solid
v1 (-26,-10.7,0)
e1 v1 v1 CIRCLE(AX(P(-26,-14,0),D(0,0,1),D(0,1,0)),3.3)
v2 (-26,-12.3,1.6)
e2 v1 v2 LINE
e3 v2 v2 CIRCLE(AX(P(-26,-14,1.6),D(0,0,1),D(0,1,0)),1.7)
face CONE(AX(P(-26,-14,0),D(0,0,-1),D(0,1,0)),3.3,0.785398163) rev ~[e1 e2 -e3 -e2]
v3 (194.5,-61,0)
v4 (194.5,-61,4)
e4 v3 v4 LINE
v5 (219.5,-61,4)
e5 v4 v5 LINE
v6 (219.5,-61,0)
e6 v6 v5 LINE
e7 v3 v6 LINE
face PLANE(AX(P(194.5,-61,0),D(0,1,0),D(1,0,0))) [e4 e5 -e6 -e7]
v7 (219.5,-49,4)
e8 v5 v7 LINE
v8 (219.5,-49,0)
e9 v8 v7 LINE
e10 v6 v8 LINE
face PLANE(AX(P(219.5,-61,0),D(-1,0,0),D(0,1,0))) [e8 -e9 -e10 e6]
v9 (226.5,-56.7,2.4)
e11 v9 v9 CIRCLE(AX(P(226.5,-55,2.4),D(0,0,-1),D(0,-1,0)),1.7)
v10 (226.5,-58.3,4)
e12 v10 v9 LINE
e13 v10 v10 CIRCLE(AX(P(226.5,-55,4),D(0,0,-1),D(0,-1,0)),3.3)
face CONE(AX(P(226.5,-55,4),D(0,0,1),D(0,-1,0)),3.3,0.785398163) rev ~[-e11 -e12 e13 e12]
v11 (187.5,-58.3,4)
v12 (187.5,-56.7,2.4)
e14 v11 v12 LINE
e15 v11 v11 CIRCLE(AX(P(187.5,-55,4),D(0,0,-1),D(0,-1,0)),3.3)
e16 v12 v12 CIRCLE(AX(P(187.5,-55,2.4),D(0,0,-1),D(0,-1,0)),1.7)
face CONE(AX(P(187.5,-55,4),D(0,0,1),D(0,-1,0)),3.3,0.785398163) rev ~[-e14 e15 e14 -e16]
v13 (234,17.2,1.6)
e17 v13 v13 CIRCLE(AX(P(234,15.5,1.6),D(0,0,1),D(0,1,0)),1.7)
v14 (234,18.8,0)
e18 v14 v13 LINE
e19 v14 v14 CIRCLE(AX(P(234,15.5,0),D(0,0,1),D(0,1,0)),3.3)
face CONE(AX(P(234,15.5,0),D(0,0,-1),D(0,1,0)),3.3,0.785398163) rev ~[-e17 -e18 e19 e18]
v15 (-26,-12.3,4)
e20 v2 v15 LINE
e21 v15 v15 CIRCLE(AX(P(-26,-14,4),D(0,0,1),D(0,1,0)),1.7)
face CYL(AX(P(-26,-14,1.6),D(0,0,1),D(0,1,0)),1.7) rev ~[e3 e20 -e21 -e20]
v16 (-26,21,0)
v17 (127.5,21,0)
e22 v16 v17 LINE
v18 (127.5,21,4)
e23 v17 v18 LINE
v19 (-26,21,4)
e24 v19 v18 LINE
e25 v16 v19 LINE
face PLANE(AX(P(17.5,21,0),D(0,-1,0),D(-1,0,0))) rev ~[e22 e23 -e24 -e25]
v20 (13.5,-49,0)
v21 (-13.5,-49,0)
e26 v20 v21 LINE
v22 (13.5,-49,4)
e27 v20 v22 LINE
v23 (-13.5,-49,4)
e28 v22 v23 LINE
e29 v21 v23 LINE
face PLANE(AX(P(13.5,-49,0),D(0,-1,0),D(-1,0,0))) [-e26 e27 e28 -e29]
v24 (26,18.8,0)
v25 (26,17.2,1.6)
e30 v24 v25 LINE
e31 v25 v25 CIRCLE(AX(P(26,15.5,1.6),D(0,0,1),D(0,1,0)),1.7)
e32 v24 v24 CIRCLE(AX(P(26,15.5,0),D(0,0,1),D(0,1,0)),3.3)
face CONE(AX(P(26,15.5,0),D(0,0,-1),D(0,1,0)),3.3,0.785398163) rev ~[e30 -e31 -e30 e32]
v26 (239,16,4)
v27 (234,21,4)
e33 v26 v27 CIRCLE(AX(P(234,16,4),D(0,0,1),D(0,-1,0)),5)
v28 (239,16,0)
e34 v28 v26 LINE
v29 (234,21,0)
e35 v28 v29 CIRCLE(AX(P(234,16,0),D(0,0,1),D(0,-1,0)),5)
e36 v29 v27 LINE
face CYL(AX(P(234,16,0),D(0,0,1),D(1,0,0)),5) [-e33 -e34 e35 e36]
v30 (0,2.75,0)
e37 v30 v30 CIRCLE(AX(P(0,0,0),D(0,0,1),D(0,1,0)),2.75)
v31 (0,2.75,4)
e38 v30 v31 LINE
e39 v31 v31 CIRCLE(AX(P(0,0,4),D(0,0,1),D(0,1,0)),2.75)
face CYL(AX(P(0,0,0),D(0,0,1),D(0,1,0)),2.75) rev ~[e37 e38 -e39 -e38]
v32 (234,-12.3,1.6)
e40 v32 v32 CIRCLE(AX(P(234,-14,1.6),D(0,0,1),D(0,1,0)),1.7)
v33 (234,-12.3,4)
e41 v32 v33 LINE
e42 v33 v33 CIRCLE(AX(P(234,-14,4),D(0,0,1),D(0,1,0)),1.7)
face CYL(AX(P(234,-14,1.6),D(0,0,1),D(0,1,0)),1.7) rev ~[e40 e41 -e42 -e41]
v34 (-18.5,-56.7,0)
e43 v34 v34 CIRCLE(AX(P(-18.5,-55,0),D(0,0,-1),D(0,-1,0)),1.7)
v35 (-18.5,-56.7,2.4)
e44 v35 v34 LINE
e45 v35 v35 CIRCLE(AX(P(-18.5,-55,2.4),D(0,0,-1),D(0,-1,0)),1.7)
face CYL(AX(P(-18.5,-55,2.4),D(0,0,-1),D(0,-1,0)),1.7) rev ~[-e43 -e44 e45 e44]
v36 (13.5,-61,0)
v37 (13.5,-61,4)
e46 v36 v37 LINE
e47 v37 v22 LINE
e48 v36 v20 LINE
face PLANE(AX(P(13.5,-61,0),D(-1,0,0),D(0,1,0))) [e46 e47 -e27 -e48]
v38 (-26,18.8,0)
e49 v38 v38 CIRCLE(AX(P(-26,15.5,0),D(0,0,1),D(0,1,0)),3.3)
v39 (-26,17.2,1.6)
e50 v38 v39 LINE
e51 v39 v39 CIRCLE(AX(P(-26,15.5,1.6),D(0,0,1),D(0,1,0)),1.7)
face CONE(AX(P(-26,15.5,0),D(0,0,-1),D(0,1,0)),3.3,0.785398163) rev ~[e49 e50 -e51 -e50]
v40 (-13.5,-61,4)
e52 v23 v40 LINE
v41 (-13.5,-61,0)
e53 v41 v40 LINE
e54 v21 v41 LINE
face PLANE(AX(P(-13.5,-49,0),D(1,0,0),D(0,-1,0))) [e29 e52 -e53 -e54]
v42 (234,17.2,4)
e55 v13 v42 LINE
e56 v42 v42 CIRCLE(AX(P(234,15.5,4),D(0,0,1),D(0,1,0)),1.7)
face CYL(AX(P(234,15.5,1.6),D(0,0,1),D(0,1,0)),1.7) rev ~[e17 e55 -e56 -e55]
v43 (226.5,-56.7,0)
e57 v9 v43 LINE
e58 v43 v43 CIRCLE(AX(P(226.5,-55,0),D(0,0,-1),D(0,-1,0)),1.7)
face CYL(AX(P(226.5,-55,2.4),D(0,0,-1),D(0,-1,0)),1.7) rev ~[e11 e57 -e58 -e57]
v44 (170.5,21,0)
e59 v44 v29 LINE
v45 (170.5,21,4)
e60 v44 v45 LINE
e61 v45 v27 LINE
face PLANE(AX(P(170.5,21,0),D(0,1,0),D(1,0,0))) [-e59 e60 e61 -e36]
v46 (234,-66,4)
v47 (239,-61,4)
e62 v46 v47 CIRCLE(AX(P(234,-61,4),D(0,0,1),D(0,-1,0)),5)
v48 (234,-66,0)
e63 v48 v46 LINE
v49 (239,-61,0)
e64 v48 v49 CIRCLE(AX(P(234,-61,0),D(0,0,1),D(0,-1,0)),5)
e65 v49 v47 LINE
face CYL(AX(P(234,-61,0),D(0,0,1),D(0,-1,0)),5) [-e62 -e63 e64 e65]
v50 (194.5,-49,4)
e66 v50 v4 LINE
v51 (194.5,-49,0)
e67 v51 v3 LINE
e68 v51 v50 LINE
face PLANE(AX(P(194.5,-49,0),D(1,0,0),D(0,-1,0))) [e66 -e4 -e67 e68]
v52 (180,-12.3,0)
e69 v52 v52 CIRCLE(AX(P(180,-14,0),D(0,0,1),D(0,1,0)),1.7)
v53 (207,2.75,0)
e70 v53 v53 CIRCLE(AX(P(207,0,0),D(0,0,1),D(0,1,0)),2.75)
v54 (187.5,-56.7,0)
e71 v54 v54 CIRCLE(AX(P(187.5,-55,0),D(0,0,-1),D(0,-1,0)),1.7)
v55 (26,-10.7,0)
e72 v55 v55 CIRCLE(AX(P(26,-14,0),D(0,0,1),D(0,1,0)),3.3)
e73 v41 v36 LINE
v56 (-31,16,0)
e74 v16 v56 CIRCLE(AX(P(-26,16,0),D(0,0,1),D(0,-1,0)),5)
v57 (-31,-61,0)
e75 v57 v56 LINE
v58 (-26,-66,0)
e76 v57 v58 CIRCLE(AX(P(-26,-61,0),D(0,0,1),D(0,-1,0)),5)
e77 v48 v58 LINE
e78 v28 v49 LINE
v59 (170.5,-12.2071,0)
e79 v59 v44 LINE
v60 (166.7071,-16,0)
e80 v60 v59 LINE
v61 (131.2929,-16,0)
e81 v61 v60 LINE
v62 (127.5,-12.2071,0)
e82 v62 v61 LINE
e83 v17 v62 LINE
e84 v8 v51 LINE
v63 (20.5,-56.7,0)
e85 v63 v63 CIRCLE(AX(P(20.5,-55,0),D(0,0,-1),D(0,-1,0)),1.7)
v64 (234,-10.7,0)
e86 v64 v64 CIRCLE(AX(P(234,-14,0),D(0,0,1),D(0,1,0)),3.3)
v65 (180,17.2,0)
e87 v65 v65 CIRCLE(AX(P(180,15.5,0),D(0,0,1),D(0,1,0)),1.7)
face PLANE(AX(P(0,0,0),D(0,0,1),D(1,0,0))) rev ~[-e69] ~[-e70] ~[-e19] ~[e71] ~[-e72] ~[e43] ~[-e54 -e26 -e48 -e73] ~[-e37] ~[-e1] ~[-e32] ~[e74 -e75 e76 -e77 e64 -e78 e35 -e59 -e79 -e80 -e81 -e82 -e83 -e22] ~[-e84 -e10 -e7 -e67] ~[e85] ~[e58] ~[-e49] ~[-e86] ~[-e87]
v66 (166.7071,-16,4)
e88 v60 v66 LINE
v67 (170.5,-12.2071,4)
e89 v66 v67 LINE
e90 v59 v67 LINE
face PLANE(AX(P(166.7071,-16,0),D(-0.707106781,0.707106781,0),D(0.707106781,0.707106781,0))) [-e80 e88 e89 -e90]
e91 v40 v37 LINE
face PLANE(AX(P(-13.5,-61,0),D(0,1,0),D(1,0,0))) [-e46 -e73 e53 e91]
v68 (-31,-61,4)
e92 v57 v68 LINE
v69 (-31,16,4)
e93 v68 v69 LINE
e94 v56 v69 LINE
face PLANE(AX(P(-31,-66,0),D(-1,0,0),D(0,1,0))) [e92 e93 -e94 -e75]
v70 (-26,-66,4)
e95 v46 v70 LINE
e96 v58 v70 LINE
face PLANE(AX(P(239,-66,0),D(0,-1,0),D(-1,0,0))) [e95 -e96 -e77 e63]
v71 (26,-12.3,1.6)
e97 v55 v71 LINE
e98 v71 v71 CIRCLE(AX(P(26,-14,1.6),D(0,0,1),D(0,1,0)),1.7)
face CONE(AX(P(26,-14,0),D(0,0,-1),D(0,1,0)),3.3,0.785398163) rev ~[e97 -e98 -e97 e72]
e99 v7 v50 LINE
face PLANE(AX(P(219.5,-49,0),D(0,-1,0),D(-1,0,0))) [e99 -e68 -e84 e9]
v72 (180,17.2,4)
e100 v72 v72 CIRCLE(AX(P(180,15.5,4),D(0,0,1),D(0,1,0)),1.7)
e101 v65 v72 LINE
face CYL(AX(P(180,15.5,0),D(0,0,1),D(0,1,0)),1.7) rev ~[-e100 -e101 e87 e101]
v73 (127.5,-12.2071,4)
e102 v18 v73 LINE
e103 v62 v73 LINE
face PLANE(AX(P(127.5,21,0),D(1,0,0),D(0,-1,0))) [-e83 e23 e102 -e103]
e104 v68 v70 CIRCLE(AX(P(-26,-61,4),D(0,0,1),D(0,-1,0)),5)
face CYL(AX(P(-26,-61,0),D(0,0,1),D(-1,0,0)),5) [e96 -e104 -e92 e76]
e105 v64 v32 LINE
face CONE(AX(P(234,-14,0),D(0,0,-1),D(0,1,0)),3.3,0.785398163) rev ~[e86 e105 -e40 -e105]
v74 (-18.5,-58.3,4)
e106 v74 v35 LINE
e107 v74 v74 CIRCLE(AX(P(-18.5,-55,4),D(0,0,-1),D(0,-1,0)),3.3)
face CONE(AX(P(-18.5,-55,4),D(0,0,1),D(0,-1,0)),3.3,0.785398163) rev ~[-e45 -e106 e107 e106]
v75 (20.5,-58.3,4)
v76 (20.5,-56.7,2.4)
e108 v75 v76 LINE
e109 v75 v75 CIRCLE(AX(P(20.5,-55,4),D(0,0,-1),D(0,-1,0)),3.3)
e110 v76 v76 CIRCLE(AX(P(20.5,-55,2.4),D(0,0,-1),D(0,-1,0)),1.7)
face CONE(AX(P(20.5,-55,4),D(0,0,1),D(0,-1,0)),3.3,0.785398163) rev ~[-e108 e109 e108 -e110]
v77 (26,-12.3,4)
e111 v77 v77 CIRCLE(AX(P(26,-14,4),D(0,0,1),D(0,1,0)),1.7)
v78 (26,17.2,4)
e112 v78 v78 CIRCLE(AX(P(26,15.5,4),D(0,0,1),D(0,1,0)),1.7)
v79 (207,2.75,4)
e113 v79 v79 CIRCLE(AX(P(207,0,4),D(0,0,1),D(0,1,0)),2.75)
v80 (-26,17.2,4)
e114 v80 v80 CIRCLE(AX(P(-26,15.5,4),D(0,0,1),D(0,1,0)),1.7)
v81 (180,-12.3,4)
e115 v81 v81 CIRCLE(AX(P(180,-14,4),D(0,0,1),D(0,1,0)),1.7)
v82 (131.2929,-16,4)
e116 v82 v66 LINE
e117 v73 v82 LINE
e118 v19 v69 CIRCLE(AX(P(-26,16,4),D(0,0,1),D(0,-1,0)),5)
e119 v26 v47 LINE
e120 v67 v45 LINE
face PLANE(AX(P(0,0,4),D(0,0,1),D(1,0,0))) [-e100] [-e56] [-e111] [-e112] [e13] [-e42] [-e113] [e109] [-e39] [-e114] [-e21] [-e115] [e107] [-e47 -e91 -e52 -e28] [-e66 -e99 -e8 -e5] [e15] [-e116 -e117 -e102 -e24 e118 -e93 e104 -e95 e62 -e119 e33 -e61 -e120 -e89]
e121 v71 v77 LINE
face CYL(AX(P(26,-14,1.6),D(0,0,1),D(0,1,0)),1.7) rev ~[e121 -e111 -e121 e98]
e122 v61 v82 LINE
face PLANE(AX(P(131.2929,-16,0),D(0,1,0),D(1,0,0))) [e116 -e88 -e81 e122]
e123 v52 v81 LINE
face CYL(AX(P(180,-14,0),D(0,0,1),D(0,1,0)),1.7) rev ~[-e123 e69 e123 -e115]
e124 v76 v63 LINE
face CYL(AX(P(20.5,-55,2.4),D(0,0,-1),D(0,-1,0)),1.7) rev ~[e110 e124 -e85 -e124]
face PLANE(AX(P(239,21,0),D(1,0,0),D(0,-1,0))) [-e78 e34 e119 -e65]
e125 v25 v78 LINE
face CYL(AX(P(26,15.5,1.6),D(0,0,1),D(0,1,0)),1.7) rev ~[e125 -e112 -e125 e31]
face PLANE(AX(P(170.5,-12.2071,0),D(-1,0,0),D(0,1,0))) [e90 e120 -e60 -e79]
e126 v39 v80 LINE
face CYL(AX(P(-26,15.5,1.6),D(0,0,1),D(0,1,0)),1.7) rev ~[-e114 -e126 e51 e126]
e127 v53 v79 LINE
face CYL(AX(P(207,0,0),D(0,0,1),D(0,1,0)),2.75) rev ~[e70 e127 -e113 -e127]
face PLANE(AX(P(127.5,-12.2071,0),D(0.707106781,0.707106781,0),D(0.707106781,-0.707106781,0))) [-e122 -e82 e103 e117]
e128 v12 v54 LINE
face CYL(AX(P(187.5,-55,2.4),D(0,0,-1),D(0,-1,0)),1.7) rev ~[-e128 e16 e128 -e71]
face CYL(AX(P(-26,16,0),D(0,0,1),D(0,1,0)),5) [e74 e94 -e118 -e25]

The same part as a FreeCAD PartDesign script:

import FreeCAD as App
import Part
import Sketcher
Q = App.Units.Quantity


def edges_at(feature, points):
    """Names of the edges that pass closest to the given points."""
    edges = feature.Shape.Edges
    near = lambda p: min(range(len(edges)), key=lambda i: edges[i].distToShape(Part.Vertex(*p))[0])
    return sorted({f"Edge{near(p) + 1}" for p in points})

doc = App.newDocument("Part")
body = doc.addObject("PartDesign::Body", "Body")

# Sketch on XY plane
sketch1 = body.newObject("Sketcher::SketchObject", "Sketch")
sketch1.AttachmentSupport = (doc.getObject("XY_Plane"), [""])
sketch1.MapMode = "FlatFace"
sketch1.addGeometry(Part.LineSegment(App.Vector(-31, 21, 0), App.Vector(-31, -66, 0)), False)
sketch1.addGeometry(Part.LineSegment(App.Vector(-31, -66, 0), App.Vector(239, -66, 0)), False)
sketch1.addGeometry(Part.LineSegment(App.Vector(239, -66, 0), App.Vector(239, 21, 0)), False)
sketch1.addGeometry(Part.LineSegment(App.Vector(239, 21, 0), App.Vector(170, 21, 0)), False)
sketch1.addGeometry(Part.LineSegment(App.Vector(170, 21, 0), App.Vector(170, -12, 0)), False)
sketch1.addGeometry(Part.LineSegment(App.Vector(170, -12, 0), App.Vector(167, -16, 0)), False)
sketch1.addGeometry(Part.LineSegment(App.Vector(167, -16, 0), App.Vector(131, -16, 0)), False)
sketch1.addGeometry(Part.LineSegment(App.Vector(131, -16, 0), App.Vector(128, -12, 0)), False)
sketch1.addGeometry(Part.LineSegment(App.Vector(128, -12, 0), App.Vector(128, 21, 0)), False)
sketch1.addGeometry(Part.LineSegment(App.Vector(128, 21, 0), App.Vector(-31, 21, 0)), False)
sketch1.addGeometry(Part.LineSegment(App.Vector(14, -49, 0), App.Vector(14, -61, 0)), False)
sketch1.addGeometry(Part.LineSegment(App.Vector(14, -61, 0), App.Vector(-14, -61, 0)), False)
sketch1.addGeometry(Part.LineSegment(App.Vector(-14, -61, 0), App.Vector(-14, -49, 0)), False)
sketch1.addGeometry(Part.LineSegment(App.Vector(-14, -49, 0), App.Vector(14, -49, 0)), False)
sketch1.addGeometry(Part.LineSegment(App.Vector(194, -49, 0), App.Vector(220, -49, 0)), False)
sketch1.addGeometry(Part.LineSegment(App.Vector(220, -49, 0), App.Vector(220, -61, 0)), False)
sketch1.addGeometry(Part.LineSegment(App.Vector(220, -61, 0), App.Vector(194, -61, 0)), False)
sketch1.addGeometry(Part.LineSegment(App.Vector(194, -61, 0), App.Vector(194, -49, 0)), False)
sketch1.addConstraint(Sketcher.Constraint("Coincident", 0, 2, 1, 1))
sketch1.addConstraint(Sketcher.Constraint("Coincident", 1, 2, 2, 1))
sketch1.addConstraint(Sketcher.Constraint("Coincident", 2, 2, 3, 1))
sketch1.addConstraint(Sketcher.Constraint("Coincident", 3, 2, 4, 1))
sketch1.addConstraint(Sketcher.Constraint("Coincident", 4, 2, 5, 1))
sketch1.addConstraint(Sketcher.Constraint("Coincident", 5, 2, 6, 1))
sketch1.addConstraint(Sketcher.Constraint("Coincident", 6, 2, 7, 1))
sketch1.addConstraint(Sketcher.Constraint("Coincident", 7, 2, 8, 1))
sketch1.addConstraint(Sketcher.Constraint("Coincident", 8, 2, 9, 1))
sketch1.addConstraint(Sketcher.Constraint("Coincident", 9, 2, 0, 1))
sketch1.addConstraint(Sketcher.Constraint("Coincident", 10, 2, 11, 1))
sketch1.addConstraint(Sketcher.Constraint("Coincident", 11, 2, 12, 1))
sketch1.addConstraint(Sketcher.Constraint("Coincident", 12, 2, 13, 1))
sketch1.addConstraint(Sketcher.Constraint("Coincident", 13, 2, 10, 1))
sketch1.addConstraint(Sketcher.Constraint("Coincident", 14, 2, 15, 1))
sketch1.addConstraint(Sketcher.Constraint("Coincident", 15, 2, 16, 1))
sketch1.addConstraint(Sketcher.Constraint("Coincident", 16, 2, 17, 1))
sketch1.addConstraint(Sketcher.Constraint("Coincident", 17, 2, 14, 1))
sketch1.addConstraint(Sketcher.Constraint("Vertical", 0))
sketch1.addConstraint(Sketcher.Constraint("Horizontal", 1))
sketch1.addConstraint(Sketcher.Constraint("Vertical", 2))
sketch1.addConstraint(Sketcher.Constraint("Horizontal", 3))
sketch1.addConstraint(Sketcher.Constraint("Vertical", 4))
sketch1.addConstraint(Sketcher.Constraint("Horizontal", 6))
sketch1.addConstraint(Sketcher.Constraint("Vertical", 8))
sketch1.addConstraint(Sketcher.Constraint("Horizontal", 9))
sketch1.addConstraint(Sketcher.Constraint("Vertical", 10))
sketch1.addConstraint(Sketcher.Constraint("Horizontal", 11))
sketch1.addConstraint(Sketcher.Constraint("Vertical", 12))
sketch1.addConstraint(Sketcher.Constraint("Horizontal", 13))
sketch1.addConstraint(Sketcher.Constraint("Horizontal", 14))
sketch1.addConstraint(Sketcher.Constraint("Vertical", 15))
sketch1.addConstraint(Sketcher.Constraint("Horizontal", 16))
sketch1.addConstraint(Sketcher.Constraint("Vertical", 17))
sketch1.addConstraint(Sketcher.Constraint("Perpendicular", 5, 7))
sketch1.addConstraint(Sketcher.Constraint("Horizontal", 4, 2, 7, 2))
sketch1.addConstraint(Sketcher.Constraint("Horizontal", 3, 2, 8, 2))
sketch1.addConstraint(Sketcher.Constraint("Horizontal", 13, 2, 14, 2))
sketch1.addConstraint(Sketcher.Constraint("Horizontal", 11, 2, 15, 2))
sketch1.addConstraint(Sketcher.Constraint("Equal", 5, 7))
sketch1.addConstraint(Sketcher.Constraint("DistanceX", 1, 1, 1, 2, Q("270 mm")))
sketch1.addConstraint(Sketcher.Constraint("DistanceX", 14, 1, 14, 2, Q("25 mm")))
sketch1.addConstraint(Sketcher.Constraint("DistanceY", 10, 2, 10, 1, Q("12 mm")))
sketch1.addConstraint(Sketcher.Constraint("DistanceY", 0, 2, 10, 2, Q("5 mm")))
sketch1.addConstraint(Sketcher.Constraint("DistanceY", 10, 2, 6, 2, Q("45 mm")))
sketch1.addConstraint(Sketcher.Constraint("DistanceX", 11, 2, 11, 1, Q("27 mm")))
sketch1.addConstraint(Sketcher.Constraint("DistanceY", 0, 2, 0, 1, Q("87 mm")))
sketch1.addConstraint(Sketcher.Constraint("DistanceX", 3, 2, 3, 1, Q("68.5 mm")))
sketch1.addConstraint(Sketcher.Constraint("DistanceX", 9, 2, 9, 1, Q("158.5 mm")))
sketch1.addConstraint(Sketcher.Constraint("DistanceX", 0, 2, -1, 1, Q("31 mm")))
sketch1.addConstraint(Sketcher.Constraint("DistanceY", 0, 2, -1, 1, Q("66 mm")))
sketch1.addConstraint(Sketcher.Constraint("DistanceX", 10, 2, 7, 2, Q("114 mm")))
sketch1.addConstraint(Sketcher.Constraint("DistanceX", 4, 2, 14, 2, Q("49 mm")))
sketch1.addConstraint(Sketcher.Constraint("DistanceY", 4, 2, 4, 1, Q("33.207 mm")))
pad1 = body.newObject("PartDesign::Pad", "Pad")
pad1.Profile = sketch1
pad1.Length = 4

# Sketch on XY plane
sketch2 = body.newObject("Sketcher::SketchObject", "Sketch001")
sketch2.AttachmentSupport = (doc.getObject("XY_Plane"), [""])
sketch2.MapMode = "FlatFace"
sketch2.addGeometry(Part.Circle(App.Vector(207, 0, 0), App.Vector(0, 0, 1), 2.8), False)
sketch2.addConstraint(Sketcher.Constraint("PointOnObject", 0, 3, -1))
sketch2.addConstraint(Sketcher.Constraint("Diameter", 0, Q("5.5 mm")))
sketch2.addConstraint(Sketcher.Constraint("DistanceX", -1, 1, 0, 3, Q("207 mm")))
doc.recompute()
hole = body.newObject("PartDesign::Hole", "Hole")
hole.Profile = sketch2
hole.ThreadType = "None"
hole.Diameter = 5.5
hole.DepthType = "ThroughAll"
hole.Reversed = True
doc.recompute()

fillet = body.newObject("PartDesign::Fillet", "Fillet")
fillet.Base = (hole, edges_at(hole, [
    (-31, 21, 2),
    (-31, -66, 2),
    (239, 21, 2),
    (239, -66, 2),
]))
fillet.Radius = 5

# Sketch on XY plane
sketch3 = body.newObject("Sketcher::SketchObject", "Sketch002")
sketch3.AttachmentSupport = (doc.getObject("XY_Plane"), [""])
sketch3.MapMode = "FlatFace"
sketch3.addGeometry(Part.Circle(App.Vector(-26, -14, 0), App.Vector(0, 0, 1), 1.7), False)
sketch3.addGeometry(Part.Circle(App.Vector(-26, 15.5, 0), App.Vector(0, 0, 1), 1.7), False)
sketch3.addGeometry(Part.Circle(App.Vector(234, 15.5, 0), App.Vector(0, 0, 1), 1.7), False)
sketch3.addGeometry(Part.Circle(App.Vector(234, -14, 0), App.Vector(0, 0, 1), 1.7), False)
sketch3.addGeometry(Part.Circle(App.Vector(26, 15.5, 0), App.Vector(0, 0, 1), 1.7), False)
sketch3.addGeometry(Part.Circle(App.Vector(26, -14, 0), App.Vector(0, 0, 1), 1.7), False)
sketch3.addConstraint(Sketcher.Constraint("Equal", 0, 1))
sketch3.addConstraint(Sketcher.Constraint("Equal", 1, 2))
sketch3.addConstraint(Sketcher.Constraint("Equal", 2, 3))
sketch3.addConstraint(Sketcher.Constraint("Equal", 3, 4))
sketch3.addConstraint(Sketcher.Constraint("Equal", 4, 5))
sketch3.addConstraint(Sketcher.Constraint("Symmetric", 1, 3, 4, 3, -2))
sketch3.addConstraint(Sketcher.Constraint("Symmetric", 0, 3, 5, 3, -2))
sketch3.addConstraint(Sketcher.Constraint("Horizontal", 1, 3, 2, 3))
sketch3.addConstraint(Sketcher.Constraint("Horizontal", 0, 3, 3, 3))
sketch3.addConstraint(Sketcher.Constraint("Vertical", 0, 3, 1, 3))
sketch3.addConstraint(Sketcher.Constraint("Vertical", 2, 3, 3, 3))
sketch3.addConstraint(Sketcher.Constraint("Diameter", 0, Q("3.4 mm")))
sketch3.addConstraint(Sketcher.Constraint("DistanceX", 0, 3, -1, 1, Q("26 mm")))
sketch3.addConstraint(Sketcher.Constraint("DistanceY", 0, 3, -1, 1, Q("14 mm")))
sketch3.addConstraint(Sketcher.Constraint("DistanceX", -1, 1, 2, 3, Q("234 mm")))
sketch3.addConstraint(Sketcher.Constraint("DistanceY", -1, 1, 1, 3, Q("15.5 mm")))
doc.recompute()
hole2 = body.newObject("PartDesign::Hole", "Hole001")
hole2.Profile = sketch3
hole2.ThreadType = "None"
hole2.Diameter = 3.4
hole2.DepthType = "ThroughAll"
hole2.HoleCutType = "Countersink"
hole2.HoleCutDiameter = 6.6
hole2.HoleCutCountersinkAngle = 90
hole2.Reversed = True

# Sketch on XY plane
sketch4 = body.newObject("Sketcher::SketchObject", "Sketch003")
sketch4.AttachmentSupport = (doc.getObject("XY_Plane"), [""])
sketch4.MapMode = "FlatFace"
sketch4.AttachmentOffset = App.Placement(App.Vector(0, 0, 4), App.Rotation())
sketch4.addGeometry(Part.Circle(App.Vector(-18.5, -55, 0), App.Vector(0, 0, 1), 1.7), False)
sketch4.addGeometry(Part.Circle(App.Vector(20.5, -55, 0), App.Vector(0, 0, 1), 1.7), False)
sketch4.addGeometry(Part.Circle(App.Vector(187.5, -55, 0), App.Vector(0, 0, 1), 1.7), False)
sketch4.addGeometry(Part.Circle(App.Vector(226.5, -55, 0), App.Vector(0, 0, 1), 1.7), False)
sketch4.addConstraint(Sketcher.Constraint("Equal", 0, 1))
sketch4.addConstraint(Sketcher.Constraint("Equal", 1, 2))
sketch4.addConstraint(Sketcher.Constraint("Equal", 2, 3))
sketch4.addConstraint(Sketcher.Constraint("Horizontal", 0, 3, 1, 3))
sketch4.addConstraint(Sketcher.Constraint("Horizontal", 1, 3, 2, 3))
sketch4.addConstraint(Sketcher.Constraint("Horizontal", 2, 3, 3, 3))
sketch4.addConstraint(Sketcher.Constraint("Diameter", 0, Q("3.4 mm")))
sketch4.addConstraint(Sketcher.Constraint("DistanceY", 0, 3, -1, 1, Q("55 mm")))
sketch4.addConstraint(Sketcher.Constraint("DistanceX", 0, 3, 1, 3, Q("39 mm")))
sketch4.addConstraint(Sketcher.Constraint("DistanceX", 1, 3, 2, 3, Q("167 mm")))
sketch4.addConstraint(Sketcher.Constraint("DistanceX", 2, 3, 3, 3, Q("39 mm")))
sketch4.addConstraint(Sketcher.Constraint("DistanceX", 0, 3, -1, 1, Q("18.5 mm")))
doc.recompute()
hole3 = body.newObject("PartDesign::Hole", "Hole002")
hole3.Profile = sketch4
hole3.ThreadType = "None"
hole3.Diameter = 3.4
hole3.DepthType = "ThroughAll"
hole3.HoleCutType = "Countersink"
hole3.HoleCutDiameter = 6.6
hole3.HoleCutCountersinkAngle = 90

# Sketch on XY plane
sketch5 = body.newObject("Sketcher::SketchObject", "Sketch004")
sketch5.AttachmentSupport = (doc.getObject("XY_Plane"), [""])
sketch5.MapMode = "FlatFace"
sketch5.addGeometry(Part.Circle(App.Vector(180, 15.5, 0), App.Vector(0, 0, 1), 1.7), False)
sketch5.addGeometry(Part.Circle(App.Vector(180, -14, 0), App.Vector(0, 0, 1), 1.7), False)
sketch5.addConstraint(Sketcher.Constraint("Equal", 0, 1))
sketch5.addConstraint(Sketcher.Constraint("Vertical", 0, 3, 1, 3))
sketch5.addConstraint(Sketcher.Constraint("Diameter", 0, Q("3.4 mm")))
sketch5.addConstraint(Sketcher.Constraint("DistanceX", -1, 1, 0, 3, Q("180 mm")))
sketch5.addConstraint(Sketcher.Constraint("DistanceY", 1, 3, -1, 1, Q("14 mm")))
sketch5.addConstraint(Sketcher.Constraint("DistanceY", -1, 1, 0, 3, Q("15.5 mm")))
doc.recompute()
hole4 = body.newObject("PartDesign::Hole", "Hole003")
hole4.Profile = sketch5
hole4.ThreadType = "None"
hole4.Diameter = 3.4
hole4.DepthType = "ThroughAll"
hole4.Reversed = True

# Sketch on XY plane
sketch6 = body.newObject("Sketcher::SketchObject", "Sketch005")
sketch6.AttachmentSupport = (doc.getObject("XY_Plane"), [""])
sketch6.MapMode = "FlatFace"
sketch6.addGeometry(Part.Circle(App.Vector(0, 0, 0), App.Vector(0, 0, 1), 2.8), False)
sketch6.addConstraint(Sketcher.Constraint("Coincident", 0, 3, -1, 1))
sketch6.addConstraint(Sketcher.Constraint("Diameter", 0, Q("5.5 mm")))
doc.recompute()
hole5 = body.newObject("PartDesign::Hole", "Hole004")
hole5.Profile = sketch6
hole5.ThreadType = "None"
hole5.Diameter = 5.5
hole5.DepthType = "Dimension"
hole5.Depth = 8
hole5.DrillPoint = "Flat"
hole5.Reversed = True

doc.recompute()
